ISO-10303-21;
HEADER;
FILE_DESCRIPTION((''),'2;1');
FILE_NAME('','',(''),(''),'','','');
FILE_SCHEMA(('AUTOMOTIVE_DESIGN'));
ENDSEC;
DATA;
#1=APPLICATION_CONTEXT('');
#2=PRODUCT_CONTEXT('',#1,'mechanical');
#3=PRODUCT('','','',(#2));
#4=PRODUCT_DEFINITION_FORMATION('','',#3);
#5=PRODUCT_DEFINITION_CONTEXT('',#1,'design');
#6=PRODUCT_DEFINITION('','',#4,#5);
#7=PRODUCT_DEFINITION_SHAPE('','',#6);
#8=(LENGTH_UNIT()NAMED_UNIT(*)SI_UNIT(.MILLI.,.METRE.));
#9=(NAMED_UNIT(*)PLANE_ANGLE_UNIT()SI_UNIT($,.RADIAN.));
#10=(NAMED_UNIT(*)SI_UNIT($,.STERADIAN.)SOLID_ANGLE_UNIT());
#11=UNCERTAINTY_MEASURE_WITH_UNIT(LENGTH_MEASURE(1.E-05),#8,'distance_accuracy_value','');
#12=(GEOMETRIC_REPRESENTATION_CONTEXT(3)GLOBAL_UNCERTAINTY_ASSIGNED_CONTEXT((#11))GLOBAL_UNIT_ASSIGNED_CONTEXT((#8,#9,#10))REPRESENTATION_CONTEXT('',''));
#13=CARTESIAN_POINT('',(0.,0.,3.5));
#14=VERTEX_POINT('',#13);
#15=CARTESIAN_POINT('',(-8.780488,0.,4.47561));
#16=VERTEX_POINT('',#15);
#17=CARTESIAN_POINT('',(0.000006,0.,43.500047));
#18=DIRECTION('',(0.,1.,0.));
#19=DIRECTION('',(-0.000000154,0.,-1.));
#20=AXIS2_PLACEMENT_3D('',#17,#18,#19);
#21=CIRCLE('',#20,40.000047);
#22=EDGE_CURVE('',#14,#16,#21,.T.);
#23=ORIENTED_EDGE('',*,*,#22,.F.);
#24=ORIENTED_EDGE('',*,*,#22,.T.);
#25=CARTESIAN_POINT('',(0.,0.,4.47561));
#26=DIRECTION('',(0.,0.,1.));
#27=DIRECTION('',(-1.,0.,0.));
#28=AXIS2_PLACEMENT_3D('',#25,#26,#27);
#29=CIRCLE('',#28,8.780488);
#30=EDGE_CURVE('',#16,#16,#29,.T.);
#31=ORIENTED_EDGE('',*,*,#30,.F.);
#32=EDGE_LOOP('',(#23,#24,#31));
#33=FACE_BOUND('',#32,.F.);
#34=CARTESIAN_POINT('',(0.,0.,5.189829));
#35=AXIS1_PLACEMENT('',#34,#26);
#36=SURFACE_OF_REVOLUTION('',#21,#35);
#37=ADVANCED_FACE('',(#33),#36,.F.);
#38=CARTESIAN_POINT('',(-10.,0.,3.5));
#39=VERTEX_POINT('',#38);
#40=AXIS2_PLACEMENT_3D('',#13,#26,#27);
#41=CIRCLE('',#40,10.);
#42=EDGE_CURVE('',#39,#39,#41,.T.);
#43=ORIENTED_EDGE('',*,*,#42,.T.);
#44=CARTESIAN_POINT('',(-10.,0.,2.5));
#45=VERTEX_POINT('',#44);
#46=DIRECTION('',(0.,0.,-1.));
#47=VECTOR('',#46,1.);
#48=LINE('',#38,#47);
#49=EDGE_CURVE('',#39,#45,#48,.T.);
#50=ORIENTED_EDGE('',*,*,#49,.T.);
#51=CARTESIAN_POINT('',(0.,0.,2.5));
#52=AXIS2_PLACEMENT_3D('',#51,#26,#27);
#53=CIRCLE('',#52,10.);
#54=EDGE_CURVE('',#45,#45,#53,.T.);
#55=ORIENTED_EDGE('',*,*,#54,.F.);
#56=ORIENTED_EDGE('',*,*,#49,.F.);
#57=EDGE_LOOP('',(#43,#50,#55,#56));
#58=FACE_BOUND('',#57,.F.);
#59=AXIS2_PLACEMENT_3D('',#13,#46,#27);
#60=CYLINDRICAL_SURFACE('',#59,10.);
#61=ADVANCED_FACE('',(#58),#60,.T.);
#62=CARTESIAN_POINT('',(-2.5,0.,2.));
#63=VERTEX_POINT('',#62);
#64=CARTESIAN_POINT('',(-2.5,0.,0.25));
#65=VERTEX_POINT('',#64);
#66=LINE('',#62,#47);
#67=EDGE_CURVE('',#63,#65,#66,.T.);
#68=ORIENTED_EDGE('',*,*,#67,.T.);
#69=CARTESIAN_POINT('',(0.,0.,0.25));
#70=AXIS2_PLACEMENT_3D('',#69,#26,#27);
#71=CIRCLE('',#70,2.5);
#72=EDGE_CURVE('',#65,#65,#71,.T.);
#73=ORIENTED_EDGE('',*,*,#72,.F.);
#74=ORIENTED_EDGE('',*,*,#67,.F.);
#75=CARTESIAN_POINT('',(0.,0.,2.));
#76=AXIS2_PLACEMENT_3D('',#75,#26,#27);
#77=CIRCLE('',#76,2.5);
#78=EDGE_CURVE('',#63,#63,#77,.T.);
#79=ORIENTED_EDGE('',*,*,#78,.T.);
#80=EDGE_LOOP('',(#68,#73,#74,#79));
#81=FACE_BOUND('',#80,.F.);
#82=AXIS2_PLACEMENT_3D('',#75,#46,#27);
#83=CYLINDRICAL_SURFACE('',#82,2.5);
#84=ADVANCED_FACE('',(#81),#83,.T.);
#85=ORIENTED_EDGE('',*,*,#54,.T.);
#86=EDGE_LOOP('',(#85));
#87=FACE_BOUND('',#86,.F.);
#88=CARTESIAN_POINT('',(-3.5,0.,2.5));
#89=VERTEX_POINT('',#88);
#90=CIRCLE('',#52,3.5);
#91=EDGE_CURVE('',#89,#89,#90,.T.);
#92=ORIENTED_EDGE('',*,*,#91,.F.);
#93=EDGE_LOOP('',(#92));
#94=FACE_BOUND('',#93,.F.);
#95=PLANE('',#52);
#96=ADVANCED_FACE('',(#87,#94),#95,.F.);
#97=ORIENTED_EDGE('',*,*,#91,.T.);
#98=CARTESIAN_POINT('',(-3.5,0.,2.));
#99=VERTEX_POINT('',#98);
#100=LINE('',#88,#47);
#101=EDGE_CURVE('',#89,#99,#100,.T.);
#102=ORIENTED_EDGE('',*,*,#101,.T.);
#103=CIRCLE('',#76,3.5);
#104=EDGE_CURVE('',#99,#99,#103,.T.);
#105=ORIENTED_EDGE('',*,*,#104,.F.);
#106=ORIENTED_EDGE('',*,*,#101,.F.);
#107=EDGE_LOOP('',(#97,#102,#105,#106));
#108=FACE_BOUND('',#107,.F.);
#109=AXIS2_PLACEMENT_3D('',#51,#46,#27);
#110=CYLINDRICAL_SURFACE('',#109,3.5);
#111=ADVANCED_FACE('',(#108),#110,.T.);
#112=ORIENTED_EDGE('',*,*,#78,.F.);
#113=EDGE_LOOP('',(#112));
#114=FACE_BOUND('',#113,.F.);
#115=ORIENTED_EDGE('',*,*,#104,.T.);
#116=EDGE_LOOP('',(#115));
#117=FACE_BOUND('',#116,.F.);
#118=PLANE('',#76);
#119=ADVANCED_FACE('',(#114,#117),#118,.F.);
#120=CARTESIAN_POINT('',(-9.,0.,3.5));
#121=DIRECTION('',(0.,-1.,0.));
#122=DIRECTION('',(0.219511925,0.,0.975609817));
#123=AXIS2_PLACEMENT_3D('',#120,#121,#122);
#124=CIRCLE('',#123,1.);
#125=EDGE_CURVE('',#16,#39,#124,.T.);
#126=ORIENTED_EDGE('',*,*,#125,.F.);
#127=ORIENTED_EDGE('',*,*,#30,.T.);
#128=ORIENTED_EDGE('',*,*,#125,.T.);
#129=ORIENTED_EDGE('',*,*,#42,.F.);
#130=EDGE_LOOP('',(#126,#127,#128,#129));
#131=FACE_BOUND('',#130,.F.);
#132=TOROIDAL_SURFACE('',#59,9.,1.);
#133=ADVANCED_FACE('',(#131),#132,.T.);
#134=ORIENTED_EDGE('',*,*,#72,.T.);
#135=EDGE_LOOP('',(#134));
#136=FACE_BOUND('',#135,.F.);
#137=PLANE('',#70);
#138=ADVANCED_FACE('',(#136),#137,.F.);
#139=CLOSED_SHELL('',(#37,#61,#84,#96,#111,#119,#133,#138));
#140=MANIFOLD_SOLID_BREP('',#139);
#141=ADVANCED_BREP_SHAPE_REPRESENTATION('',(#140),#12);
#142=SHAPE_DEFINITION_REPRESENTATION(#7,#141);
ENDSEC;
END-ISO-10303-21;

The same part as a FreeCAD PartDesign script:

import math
import FreeCAD as App
import Part
import Sketcher
from FreeCAD import Vector

doc = App.newDocument("Part")
body = doc.addObject("PartDesign::Body", "Body")

# Sketch on XZ plane
sketch1 = doc.addObject("Sketcher::SketchObject", "Sketch")
body.addObject(sketch1)
sketch1.AttachmentSupport = (doc.XZ_Plane, [""])
sketch1.MapMode = "FlatFace"
sketch1.addGeometry([
    Part.LineSegment(Vector(-2.5, 2, 0), Vector(-2.5, 0.2, 0)),  # 0
    Part.LineSegment(Vector(-2.5, 0.2, 0), Vector(0, 0.2, 0)),  # 1
    Part.LineSegment(Vector(0, 0.2, 0), Vector(0, 3.5, 0)),  # 2
    Part.ArcOfCircle(Part.Circle(Vector(0, 43.5, 0), Vector(0, 0, 1), 40), math.radians(-102.68), math.radians(-90)),  # 3
    Part.ArcOfCircle(Part.Circle(Vector(-9, 3.5, 0), Vector(0, 0, 1), 1), math.radians(77), math.radians(180)),  # 4
    Part.LineSegment(Vector(-10, 3.5, 0), Vector(-10, 2.5, 0)),  # 5
    Part.LineSegment(Vector(-10, 2.5, 0), Vector(-3.5, 2.5, 0)),  # 6
    Part.LineSegment(Vector(-3.5, 2.5, 0), Vector(-3.5, 2, 0)),  # 7
    Part.LineSegment(Vector(-3.5, 2, 0), Vector(-2.5, 2, 0)),  # 8
], False)
sketch1.addConstraint([
    Sketcher.Constraint("Coincident", 0, 2, 1, 1),
    Sketcher.Constraint("Coincident", 1, 2, 2, 1),
    Sketcher.Constraint("Coincident", 2, 2, 3, 2),
    Sketcher.Constraint("Tangent", 3, 1, 4, 1),
    Sketcher.Constraint("Tangent", 4, 2, 5, 1),
    Sketcher.Constraint("Coincident", 5, 2, 6, 1),
    Sketcher.Constraint("Coincident", 6, 2, 7, 1),
    Sketcher.Constraint("Coincident", 7, 2, 8, 1),
    Sketcher.Constraint("Coincident", 8, 2, 0, 1),
    Sketcher.Constraint("Vertical", 0),
    Sketcher.Constraint("Horizontal", 1),
    Sketcher.Constraint("Vertical", 2),
    Sketcher.Constraint("Vertical", 5),
    Sketcher.Constraint("Horizontal", 6),
    Sketcher.Constraint("Vertical", 7),
    Sketcher.Constraint("Horizontal", 8),
    Sketcher.Constraint("PointOnObject", 1, 2, -2),
    Sketcher.Constraint("Horizontal", 4, 3, 2, 2),
    Sketcher.Constraint("Equal", 8, 5),
    Sketcher.Constraint("Radius", 4, 1.0),
    Sketcher.Constraint("DistanceX", 8, 1, 8, 2, 1.0),
    Sketcher.Constraint("DistanceX", 1, 1, 1, 2, 2.5),
    Sketcher.Constraint("DistanceX", 6, 1, 6, 2, 6.5),
    Sketcher.Constraint("DistanceY", 7, 2, 7, 1, 0.5),
    Sketcher.Constraint("DistanceY", -1, 1, 7, 2, 2.0),
    Sketcher.Constraint("DistanceY", 0, 2, 0, 1, 1.75),
    Sketcher.Constraint("Radius", 3, 40.000047),
])
revolution = doc.addObject("PartDesign::Revolution", "Revolution")
body.addObject(revolution)
revolution.Profile = sketch1
revolution.ReferenceAxis = (sketch1, ["V_Axis"])
revolution.Angle = 360

doc.recompute()
